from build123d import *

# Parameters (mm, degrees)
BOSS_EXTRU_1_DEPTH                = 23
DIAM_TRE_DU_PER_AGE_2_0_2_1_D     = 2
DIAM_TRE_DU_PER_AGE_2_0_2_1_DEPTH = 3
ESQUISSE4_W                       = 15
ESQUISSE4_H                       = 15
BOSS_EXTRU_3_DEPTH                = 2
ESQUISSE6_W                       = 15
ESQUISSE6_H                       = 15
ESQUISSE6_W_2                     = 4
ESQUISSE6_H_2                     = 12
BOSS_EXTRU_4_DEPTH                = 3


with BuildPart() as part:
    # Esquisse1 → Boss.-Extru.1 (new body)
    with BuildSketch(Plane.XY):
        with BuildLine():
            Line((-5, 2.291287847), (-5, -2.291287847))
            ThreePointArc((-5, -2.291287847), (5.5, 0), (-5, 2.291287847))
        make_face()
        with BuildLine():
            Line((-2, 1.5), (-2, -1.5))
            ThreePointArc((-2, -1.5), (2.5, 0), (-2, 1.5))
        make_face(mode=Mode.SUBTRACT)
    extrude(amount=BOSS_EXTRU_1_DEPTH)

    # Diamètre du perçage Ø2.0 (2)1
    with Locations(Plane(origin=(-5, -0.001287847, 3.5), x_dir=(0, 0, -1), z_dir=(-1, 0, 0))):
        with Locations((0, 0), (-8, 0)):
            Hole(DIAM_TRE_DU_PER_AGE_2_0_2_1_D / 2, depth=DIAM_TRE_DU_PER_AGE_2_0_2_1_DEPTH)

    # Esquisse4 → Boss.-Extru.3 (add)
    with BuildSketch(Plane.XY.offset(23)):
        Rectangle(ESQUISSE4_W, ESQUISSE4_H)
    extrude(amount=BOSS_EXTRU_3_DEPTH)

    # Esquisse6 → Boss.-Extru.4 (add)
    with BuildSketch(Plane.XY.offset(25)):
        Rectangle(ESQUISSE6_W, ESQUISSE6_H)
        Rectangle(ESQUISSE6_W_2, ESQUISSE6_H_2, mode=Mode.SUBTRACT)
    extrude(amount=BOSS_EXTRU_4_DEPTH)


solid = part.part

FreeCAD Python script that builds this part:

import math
import FreeCAD as App
import Part
import Sketcher
from FreeCAD import Vector
Q = App.Units.Quantity

doc = App.newDocument("Part")
body = doc.addObject("PartDesign::Body", "Body")

# Sketch on XY plane
sketch1 = body.newObject("Sketcher::SketchObject", "Sketch")
sketch1.AttachmentSupport = (doc.getObject("XY_Plane"), [""])
sketch1.MapMode = "FlatFace"
sketch1.addGeometry([
    Part.LineSegment(Vector(-5, 2.291288, 0), Vector(-5, -2.291288, 0)),
    Part.ArcOfCircle(Part.Circle(Vector(0, 0, 0), Vector(0, 0, 1), 5.5), math.radians(-155.380023), math.radians(155.380023)),
    Part.LineSegment(Vector(-2, -1.5, 0), Vector(-2, 1.5, 0)),
    Part.ArcOfCircle(Part.Circle(Vector(0, 0, 0), Vector(0, 0, 1), 2.5), math.radians(-143.130102), math.radians(143.130102)),
], False)
sketch1.addConstraint([
    Sketcher.Constraint("Coincident", 0, 1, 1, 2),
    Sketcher.Constraint("Coincident", 1, 1, 0, 2),
    Sketcher.Constraint("Coincident", 2, 1, 3, 1),
    Sketcher.Constraint("Coincident", 3, 2, 2, 2),
    Sketcher.Constraint("Vertical", 0),
    Sketcher.Constraint("Vertical", 2),
    Sketcher.Constraint("Coincident", 1, 3, -1, 1),
    Sketcher.Constraint("Coincident", 3, 3, -1, 1),
    Sketcher.Constraint("Radius", 1, Q("5.5 mm")),
    Sketcher.Constraint("Radius", 3, Q("2.5 mm")),
    Sketcher.Constraint("DistanceY", 2, 1, 2, 2, Q("3 mm")),
    Sketcher.Constraint("DistanceX", 0, 1, -1, 1, Q("5 mm")),
])
pad1 = body.newObject("PartDesign::Pad", "Pad")
pad1.Profile = sketch1
pad1.Length = 23

# Sketch on YZ plane
sketch2 = body.newObject("Sketcher::SketchObject", "Sketch001")
sketch2.AttachmentSupport = (doc.getObject("YZ_Plane"), [""])
sketch2.MapMode = "FlatFace"
sketch2.AttachmentOffset = App.Placement(Vector(0, 0, -5), App.Rotation())
sketch2.addGeometry([
    Part.Circle(Vector(-0.001288, 3.5, 0), Vector(0, 0, 1), 1),
    Part.Circle(Vector(-0.001288, 11.5, 0), Vector(0, 0, 1), 1),
], False)
sketch2.addConstraint([
    Sketcher.Constraint("Equal", 0, 1),
    Sketcher.Constraint("Vertical", 0, 3, 1, 3),
    Sketcher.Constraint("Diameter", 0, Q("2 mm")),
    Sketcher.Constraint("DistanceY", 0, 3, 1, 3, Q("8 mm")),
    Sketcher.Constraint("DistanceY", -1, 1, 0, 3, Q("3.5 mm")),
    Sketcher.Constraint("DistanceX", 0, 3, -1, 1, Q("0.001288 mm")),
])
doc.recompute()
hole = body.newObject("PartDesign::Hole", "Hole")
hole.Profile = sketch2
hole.ThreadType = "None"
hole.Diameter = 2
hole.DepthType = "Dimension"
hole.Depth = 3
hole.DrillPoint = "Flat"
hole.Reversed = True

# Sketch on XY plane
sketch3 = body.newObject("Sketcher::SketchObject", "Sketch002")
sketch3.AttachmentSupport = (doc.getObject("XY_Plane"), [""])
sketch3.MapMode = "FlatFace"
sketch3.AttachmentOffset = App.Placement(Vector(0, 0, 23), App.Rotation())
sketch3.addGeometry([
    Part.LineSegment(Vector(-7.5, 7.5, 0), Vector(-7.5, -7.5, 0)),
    Part.LineSegment(Vector(-7.5, -7.5, 0), Vector(7.5, -7.5, 0)),
    Part.LineSegment(Vector(7.5, -7.5, 0), Vector(7.5, 7.5, 0)),
    Part.LineSegment(Vector(7.5, 7.5, 0), Vector(-7.5, 7.5, 0)),
], False)
sketch3.addConstraint([
    Sketcher.Constraint("Coincident", 0, 2, 1, 1),
    Sketcher.Constraint("Coincident", 1, 2, 2, 1),
    Sketcher.Constraint("Coincident", 2, 2, 3, 1),
    Sketcher.Constraint("Coincident", 3, 2, 0, 1),
    Sketcher.Constraint("Vertical", 0),
    Sketcher.Constraint("Horizontal", 1),
    Sketcher.Constraint("Vertical", 2),
    Sketcher.Constraint("Horizontal", 3),
    Sketcher.Constraint("Symmetric", 0, 2, 2, 2, -1, 1),
    Sketcher.Constraint("Equal", 3, 0),
    Sketcher.Constraint("DistanceX", 1, 1, 1, 2, Q("15 mm")),
])
pad2 = body.newObject("PartDesign::Pad", "Pad001")
pad2.Profile = sketch3
pad2.Length = 2

# Sketch on XY plane
sketch4 = body.newObject("Sketcher::SketchObject", "Sketch003")
sketch4.AttachmentSupport = (doc.getObject("XY_Plane"), [""])
sketch4.MapMode = "FlatFace"
sketch4.AttachmentOffset = App.Placement(Vector(0, 0, 25), App.Rotation())
sketch4.addGeometry([
    Part.LineSegment(Vector(-7.5, 7.5, 0), Vector(-7.5, -7.5, 0)),  # 0
    Part.LineSegment(Vector(-7.5, -7.5, 0), Vector(7.5, -7.5, 0)),  # 1
    Part.LineSegment(Vector(7.5, -7.5, 0), Vector(7.5, 7.5, 0)),  # 2
    Part.LineSegment(Vector(7.5, 7.5, 0), Vector(-7.5, 7.5, 0)),  # 3
    Part.LineSegment(Vector(2, -6, 0), Vector(-2, -6, 0)),  # 4
    Part.LineSegment(Vector(-2, -6, 0), Vector(-2, 6, 0)),  # 5
    Part.LineSegment(Vector(-2, 6, 0), Vector(2, 6, 0)),  # 6
    Part.LineSegment(Vector(2, 6, 0), Vector(2, -6, 0)),  # 7
], False)
sketch4.addConstraint([
    Sketcher.Constraint("Coincident", 0, 2, 1, 1),
    Sketcher.Constraint("Coincident", 1, 2, 2, 1),
    Sketcher.Constraint("Coincident", 2, 2, 3, 1),
    Sketcher.Constraint("Coincident", 3, 2, 0, 1),
    Sketcher.Constraint("Coincident", 4, 2, 5, 1),
    Sketcher.Constraint("Coincident", 5, 2, 6, 1),
    Sketcher.Constraint("Coincident", 6, 2, 7, 1),
    Sketcher.Constraint("Coincident", 7, 2, 4, 1),
    Sketcher.Constraint("Vertical", 0),
    Sketcher.Constraint("Horizontal", 1),
    Sketcher.Constraint("Vertical", 2),
    Sketcher.Constraint("Horizontal", 3),
    Sketcher.Constraint("Horizontal", 4),
    Sketcher.Constraint("Vertical", 5),
    Sketcher.Constraint("Horizontal", 6),
    Sketcher.Constraint("Vertical", 7),
    Sketcher.Constraint("Symmetric", 0, 2, 2, 2, -1, 1),
    Sketcher.Constraint("Symmetric", 4, 2, 6, 2, -1, 1),
    Sketcher.Constraint("Equal", 3, 0),
    Sketcher.Constraint("DistanceX", 1, 1, 1, 2, Q("15 mm")),
    Sketcher.Constraint("DistanceX", 4, 2, 4, 1, Q("4 mm")),
    Sketcher.Constraint("DistanceY", 5, 1, 5, 2, Q("12 mm")),
])
pad3 = body.newObject("PartDesign::Pad", "Pad002")
pad3.Profile = sketch4
pad3.Length = 3

doc.recompute()
